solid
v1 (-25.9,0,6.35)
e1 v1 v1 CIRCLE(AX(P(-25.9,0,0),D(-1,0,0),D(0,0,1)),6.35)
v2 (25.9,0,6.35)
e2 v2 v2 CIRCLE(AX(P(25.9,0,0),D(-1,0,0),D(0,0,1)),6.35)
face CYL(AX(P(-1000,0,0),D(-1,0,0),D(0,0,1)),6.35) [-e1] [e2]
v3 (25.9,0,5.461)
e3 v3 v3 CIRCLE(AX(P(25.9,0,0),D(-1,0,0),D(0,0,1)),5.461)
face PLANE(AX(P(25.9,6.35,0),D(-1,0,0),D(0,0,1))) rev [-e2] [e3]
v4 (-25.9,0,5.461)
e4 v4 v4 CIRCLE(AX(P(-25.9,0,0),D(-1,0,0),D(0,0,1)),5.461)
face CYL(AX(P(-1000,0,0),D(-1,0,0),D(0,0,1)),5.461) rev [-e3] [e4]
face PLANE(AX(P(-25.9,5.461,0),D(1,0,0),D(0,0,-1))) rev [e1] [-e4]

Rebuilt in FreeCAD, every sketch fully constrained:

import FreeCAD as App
import Part
import Sketcher

V = App.Vector


def add_polygon(sketch, points):
    """Adds a closed chain of lines whose ends are joined by coincident constraints."""
    first, n = sketch.GeometryCount, len(points)
    for a, b in zip(points, points[1:] + points[:1]):
        sketch.addGeometry(Part.LineSegment(App.Vector(*a, 0), App.Vector(*b, 0)), False)
    for i in range(n):
        sketch.addConstraint(Sketcher.Constraint("Coincident", first + i, 2, first + (i + 1) % n, 1))

doc = App.newDocument("Part")
body = doc.addObject("PartDesign::Body", "Body")

sketch1 = body.newObject("Sketcher::SketchObject", "Sketch")
sketch1.AttachmentSupport = (doc.getObject("XY_Plane"), [""])
sketch1.MapMode = "FlatFace"
add_polygon(sketch1, [(-25.9, 6.3), (-25.9, 5.5), (25.9, 5.5), (25.9, 6.3)])
sketch1.addConstraint([
    Sketcher.Constraint("Vertical", 0),
    Sketcher.Constraint("Horizontal", 1),
    Sketcher.Constraint("Vertical", 2),
    Sketcher.Constraint("Horizontal", 3),
    Sketcher.Constraint("DistanceX", 1, 1, 1, 2, 51.8),
    Sketcher.Constraint("DistanceX", 0, 2, -1, 1, 25.9),
    Sketcher.Constraint("DistanceY", 0, 2, 0, 1, 0.889),
    Sketcher.Constraint("DistanceY", -1, 1, 2, 2, 6.35),
])
revolution = body.newObject("PartDesign::Revolution", "Revolution")
revolution.Profile = sketch1
revolution.ReferenceAxis = (sketch1, ["H_Axis"])
revolution.Angle = 360

doc.recompute()
